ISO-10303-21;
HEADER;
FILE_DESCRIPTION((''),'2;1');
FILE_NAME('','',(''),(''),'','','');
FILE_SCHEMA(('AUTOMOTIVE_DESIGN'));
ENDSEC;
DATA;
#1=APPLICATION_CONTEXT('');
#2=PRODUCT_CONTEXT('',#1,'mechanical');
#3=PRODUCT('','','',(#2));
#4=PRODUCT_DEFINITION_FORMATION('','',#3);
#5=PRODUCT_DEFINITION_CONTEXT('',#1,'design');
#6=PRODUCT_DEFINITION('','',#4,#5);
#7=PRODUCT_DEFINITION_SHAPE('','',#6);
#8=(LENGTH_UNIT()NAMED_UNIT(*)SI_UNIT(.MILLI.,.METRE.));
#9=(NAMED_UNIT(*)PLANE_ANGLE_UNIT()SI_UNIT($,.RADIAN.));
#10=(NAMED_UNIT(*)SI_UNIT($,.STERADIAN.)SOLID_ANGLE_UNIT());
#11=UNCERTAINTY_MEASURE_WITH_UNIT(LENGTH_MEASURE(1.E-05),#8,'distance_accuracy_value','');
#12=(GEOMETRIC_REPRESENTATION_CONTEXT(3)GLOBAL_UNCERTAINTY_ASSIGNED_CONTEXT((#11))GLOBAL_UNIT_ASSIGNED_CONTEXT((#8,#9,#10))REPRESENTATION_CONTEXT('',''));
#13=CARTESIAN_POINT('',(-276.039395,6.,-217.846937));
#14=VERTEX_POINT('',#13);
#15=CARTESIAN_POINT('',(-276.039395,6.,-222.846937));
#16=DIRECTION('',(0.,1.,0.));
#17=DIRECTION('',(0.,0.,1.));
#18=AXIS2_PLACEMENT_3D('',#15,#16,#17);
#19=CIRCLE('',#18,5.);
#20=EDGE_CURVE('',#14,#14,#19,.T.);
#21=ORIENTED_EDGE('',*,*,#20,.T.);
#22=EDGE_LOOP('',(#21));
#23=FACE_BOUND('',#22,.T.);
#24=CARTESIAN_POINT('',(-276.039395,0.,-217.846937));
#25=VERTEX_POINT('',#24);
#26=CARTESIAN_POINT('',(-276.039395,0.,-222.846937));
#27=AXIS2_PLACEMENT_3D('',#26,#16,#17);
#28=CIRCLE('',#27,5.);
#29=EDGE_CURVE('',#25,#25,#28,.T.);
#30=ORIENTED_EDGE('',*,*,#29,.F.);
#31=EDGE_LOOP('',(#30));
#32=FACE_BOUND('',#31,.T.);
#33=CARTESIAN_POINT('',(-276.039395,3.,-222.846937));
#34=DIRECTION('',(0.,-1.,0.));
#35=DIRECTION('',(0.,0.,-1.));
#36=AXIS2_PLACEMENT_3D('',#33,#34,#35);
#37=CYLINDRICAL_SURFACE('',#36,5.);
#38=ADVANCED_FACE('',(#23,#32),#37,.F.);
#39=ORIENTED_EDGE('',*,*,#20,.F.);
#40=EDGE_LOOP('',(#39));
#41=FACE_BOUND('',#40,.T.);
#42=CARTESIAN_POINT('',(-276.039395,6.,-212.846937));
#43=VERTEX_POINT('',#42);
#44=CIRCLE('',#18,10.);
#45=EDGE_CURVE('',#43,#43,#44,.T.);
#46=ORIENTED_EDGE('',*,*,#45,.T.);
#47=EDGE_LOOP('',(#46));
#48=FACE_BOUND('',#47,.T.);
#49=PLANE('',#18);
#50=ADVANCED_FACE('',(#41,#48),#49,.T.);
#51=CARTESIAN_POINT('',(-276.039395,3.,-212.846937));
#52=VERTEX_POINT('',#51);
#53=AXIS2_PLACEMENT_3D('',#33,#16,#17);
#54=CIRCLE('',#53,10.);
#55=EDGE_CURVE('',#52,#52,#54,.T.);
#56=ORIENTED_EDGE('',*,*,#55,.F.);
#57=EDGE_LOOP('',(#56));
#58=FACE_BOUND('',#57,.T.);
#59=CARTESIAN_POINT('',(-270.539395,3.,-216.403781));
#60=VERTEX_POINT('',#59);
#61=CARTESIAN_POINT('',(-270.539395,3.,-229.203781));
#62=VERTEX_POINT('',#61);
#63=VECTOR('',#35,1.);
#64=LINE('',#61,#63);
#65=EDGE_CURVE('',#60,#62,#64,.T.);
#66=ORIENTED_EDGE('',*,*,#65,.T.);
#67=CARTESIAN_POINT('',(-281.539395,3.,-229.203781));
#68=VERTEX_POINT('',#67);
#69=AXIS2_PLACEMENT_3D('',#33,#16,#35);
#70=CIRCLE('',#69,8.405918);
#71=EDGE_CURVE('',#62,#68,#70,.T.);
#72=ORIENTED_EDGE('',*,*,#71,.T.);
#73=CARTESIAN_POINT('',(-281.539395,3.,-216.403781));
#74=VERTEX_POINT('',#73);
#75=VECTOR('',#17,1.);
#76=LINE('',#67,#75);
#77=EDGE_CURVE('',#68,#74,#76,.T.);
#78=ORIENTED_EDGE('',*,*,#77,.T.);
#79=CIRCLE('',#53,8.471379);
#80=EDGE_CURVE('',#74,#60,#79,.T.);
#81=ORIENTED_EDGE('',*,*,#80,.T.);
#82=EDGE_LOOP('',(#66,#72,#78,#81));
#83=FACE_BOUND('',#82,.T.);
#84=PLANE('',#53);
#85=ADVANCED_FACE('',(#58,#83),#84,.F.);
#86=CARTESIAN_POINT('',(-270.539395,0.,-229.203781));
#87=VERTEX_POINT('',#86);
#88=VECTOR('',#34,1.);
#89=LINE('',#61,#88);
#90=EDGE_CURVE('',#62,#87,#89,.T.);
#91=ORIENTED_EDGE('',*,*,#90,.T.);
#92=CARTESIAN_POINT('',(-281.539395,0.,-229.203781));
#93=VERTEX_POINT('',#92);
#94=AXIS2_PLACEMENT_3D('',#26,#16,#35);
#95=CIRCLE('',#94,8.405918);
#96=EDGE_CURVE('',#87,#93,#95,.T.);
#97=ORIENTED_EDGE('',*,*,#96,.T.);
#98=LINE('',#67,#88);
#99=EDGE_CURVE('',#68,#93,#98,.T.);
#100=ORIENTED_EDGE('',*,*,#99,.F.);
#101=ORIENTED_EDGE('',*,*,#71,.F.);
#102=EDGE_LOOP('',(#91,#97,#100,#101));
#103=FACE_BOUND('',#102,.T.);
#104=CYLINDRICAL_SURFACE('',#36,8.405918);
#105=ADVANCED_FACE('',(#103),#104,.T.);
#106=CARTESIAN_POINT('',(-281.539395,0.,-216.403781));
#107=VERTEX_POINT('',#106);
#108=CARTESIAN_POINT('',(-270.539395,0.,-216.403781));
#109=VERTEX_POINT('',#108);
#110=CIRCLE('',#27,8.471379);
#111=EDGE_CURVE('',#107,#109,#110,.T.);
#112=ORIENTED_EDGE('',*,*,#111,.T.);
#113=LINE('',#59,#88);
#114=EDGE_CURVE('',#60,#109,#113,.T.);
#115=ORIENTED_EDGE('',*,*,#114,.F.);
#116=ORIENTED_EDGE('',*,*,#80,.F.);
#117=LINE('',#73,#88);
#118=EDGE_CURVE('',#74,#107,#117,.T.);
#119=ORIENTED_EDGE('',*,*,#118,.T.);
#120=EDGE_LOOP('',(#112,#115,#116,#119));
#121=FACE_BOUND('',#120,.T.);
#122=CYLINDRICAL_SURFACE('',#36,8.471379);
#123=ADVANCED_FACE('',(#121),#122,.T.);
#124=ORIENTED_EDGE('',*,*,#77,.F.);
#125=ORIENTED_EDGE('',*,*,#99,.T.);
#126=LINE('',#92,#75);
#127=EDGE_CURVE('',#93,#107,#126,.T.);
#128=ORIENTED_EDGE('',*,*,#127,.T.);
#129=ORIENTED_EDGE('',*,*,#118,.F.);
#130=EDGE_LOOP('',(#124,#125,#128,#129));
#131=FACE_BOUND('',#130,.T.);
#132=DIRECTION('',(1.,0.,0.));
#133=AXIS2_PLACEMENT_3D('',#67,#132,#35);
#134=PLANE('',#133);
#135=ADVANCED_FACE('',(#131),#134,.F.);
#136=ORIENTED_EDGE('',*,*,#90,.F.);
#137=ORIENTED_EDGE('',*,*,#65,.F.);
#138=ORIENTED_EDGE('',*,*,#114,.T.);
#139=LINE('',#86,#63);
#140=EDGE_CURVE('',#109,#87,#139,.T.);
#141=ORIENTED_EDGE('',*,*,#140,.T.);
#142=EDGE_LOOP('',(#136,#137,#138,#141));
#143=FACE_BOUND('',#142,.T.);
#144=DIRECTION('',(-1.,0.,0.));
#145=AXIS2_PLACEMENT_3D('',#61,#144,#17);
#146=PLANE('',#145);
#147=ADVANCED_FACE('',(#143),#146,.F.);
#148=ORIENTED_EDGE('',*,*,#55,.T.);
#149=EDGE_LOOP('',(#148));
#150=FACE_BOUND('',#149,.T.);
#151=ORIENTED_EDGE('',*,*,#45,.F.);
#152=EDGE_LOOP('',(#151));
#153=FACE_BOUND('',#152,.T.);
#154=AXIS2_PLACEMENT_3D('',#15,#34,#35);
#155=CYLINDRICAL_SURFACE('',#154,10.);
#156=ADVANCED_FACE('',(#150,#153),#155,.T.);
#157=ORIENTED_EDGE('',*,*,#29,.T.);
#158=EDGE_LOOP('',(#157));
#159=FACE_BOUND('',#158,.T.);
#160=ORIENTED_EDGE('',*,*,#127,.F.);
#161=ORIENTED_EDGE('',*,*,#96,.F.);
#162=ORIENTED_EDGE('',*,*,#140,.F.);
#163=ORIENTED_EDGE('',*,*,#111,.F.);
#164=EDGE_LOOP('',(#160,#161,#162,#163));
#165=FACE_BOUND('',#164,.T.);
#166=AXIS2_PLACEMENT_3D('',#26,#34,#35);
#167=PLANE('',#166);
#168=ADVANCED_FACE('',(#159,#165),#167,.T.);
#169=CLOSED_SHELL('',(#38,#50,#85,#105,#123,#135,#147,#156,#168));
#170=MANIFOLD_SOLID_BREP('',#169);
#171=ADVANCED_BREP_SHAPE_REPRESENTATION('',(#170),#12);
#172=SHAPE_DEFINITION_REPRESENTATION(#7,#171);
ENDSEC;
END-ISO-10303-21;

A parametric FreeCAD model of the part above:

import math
import FreeCAD as App
import Part
import Sketcher

doc = App.newDocument("Part")
body = doc.addObject("PartDesign::Body", "Body")

# Sketch on XZ plane
sketch1 = doc.addObject("Sketcher::SketchObject", "Sketch")
body.addObject(sketch1)
sketch1.AttachmentSupport = (doc.XZ_Plane, [""])
sketch1.MapMode = "FlatFace"
sketch1.addGeometry([
    Part.LineSegment(App.Vector(-282, -229, 0), App.Vector(-282, -216, 0)),  # 0
    Part.ArcOfCircle(Part.Circle(App.Vector(-276, -223, 0), App.Vector(0, 0, 1), 8), math.radians(50), math.radians(130)),  # 1
    Part.LineSegment(App.Vector(-271, -216, 0), App.Vector(-271, -229, 0)),  # 2
    Part.ArcOfCircle(Part.Circle(App.Vector(-276, -223, 0), App.Vector(0, 0, 1), 8), math.radians(-131), math.radians(-49)),  # 3
    Part.Circle(App.Vector(-276, -223, 0), App.Vector(0, 0, 1), 5),  # 4
], False)
sketch1.addConstraint([
    Sketcher.Constraint("Coincident", 0, 2, 1, 2),
    Sketcher.Constraint("Coincident", 1, 1, 2, 1),
    Sketcher.Constraint("Coincident", 2, 2, 3, 2),
    Sketcher.Constraint("Coincident", 3, 1, 0, 1),
    Sketcher.Constraint("Vertical", 0),
    Sketcher.Constraint("Vertical", 2),
    Sketcher.Constraint("Coincident", 3, 3, 1, 3),
    Sketcher.Constraint("Coincident", 4, 3, 1, 3),
    Sketcher.Constraint("Horizontal", 0, 2, 1, 1),
    Sketcher.Constraint("Diameter", 4, 10.0),
    Sketcher.Constraint("DistanceY", 0, 1, 0, 2, 12.8),
    Sketcher.Constraint("DistanceX", 0, 2, 1, 1, 11.0),
    Sketcher.Constraint("Radius", 1, 8.471379),
    Sketcher.Constraint("DistanceY", 0, 2, -1, 1, 216.403781),
    Sketcher.Constraint("DistanceX", 1, 3, -1, 1, 276.039395),
])
pad1 = doc.addObject("PartDesign::Pad", "Pad")
body.addObject(pad1)
pad1.Profile = sketch1
pad1.Length = 3
pad1.Reversed = True

# Sketch on XZ plane
sketch2 = doc.addObject("Sketcher::SketchObject", "Sketch001")
body.addObject(sketch2)
sketch2.AttachmentSupport = (doc.XZ_Plane, [""])
sketch2.MapMode = "FlatFace"
sketch2.AttachmentOffset = App.Placement(App.Vector(0, 0, -3), App.Rotation())
sketch2.addGeometry([
    Part.Circle(App.Vector(-276, -223, 0), App.Vector(0, 0, 1), 10),
    Part.Circle(App.Vector(-276, -223, 0), App.Vector(0, 0, 1), 5),
], False)
sketch2.addConstraint([
    Sketcher.Constraint("Coincident", 1, 3, 0, 3),
    Sketcher.Constraint("Diameter", 0, 20.0),
    Sketcher.Constraint("Diameter", 1, 10.0),
    Sketcher.Constraint("DistanceX", 0, 3, -1, 1, 276.039395),
    Sketcher.Constraint("DistanceY", 0, 3, -1, 1, 222.846937),
])
pad2 = doc.addObject("PartDesign::Pad", "Pad001")
body.addObject(pad2)
pad2.Profile = sketch2
pad2.Length = 3
pad2.Reversed = True

doc.recompute()
